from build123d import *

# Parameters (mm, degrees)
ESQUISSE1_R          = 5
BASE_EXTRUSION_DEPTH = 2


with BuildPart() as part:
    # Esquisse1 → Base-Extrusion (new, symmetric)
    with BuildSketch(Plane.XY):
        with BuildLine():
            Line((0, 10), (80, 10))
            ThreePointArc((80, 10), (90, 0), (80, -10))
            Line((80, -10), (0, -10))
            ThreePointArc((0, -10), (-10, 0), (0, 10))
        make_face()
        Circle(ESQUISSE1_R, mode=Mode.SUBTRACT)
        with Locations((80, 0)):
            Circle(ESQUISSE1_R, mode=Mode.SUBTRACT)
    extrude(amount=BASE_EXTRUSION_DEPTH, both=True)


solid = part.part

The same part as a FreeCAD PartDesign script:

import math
import FreeCAD as App
import Part
import Sketcher
from FreeCAD import Vector
Q = App.Units.Quantity

doc = App.newDocument("Part")
body = doc.addObject("PartDesign::Body", "Body")

# Sketch on XY plane
sketch1 = doc.addObject("Sketcher::SketchObject", "Sketch")
body.addObject(sketch1)
sketch1.AttachmentSupport = (doc.XY_Plane, [""])
sketch1.MapMode = "FlatFace"
sketch1.addGeometry([
    Part.LineSegment(Vector(80, 10, 0), Vector(0, 10, 0)),  # 0
    Part.ArcOfCircle(Part.Circle(Vector(0, 0, 0), Vector(0, 0, 1), 10), math.radians(90), math.radians(270)),  # 1
    Part.LineSegment(Vector(0, -10, 0), Vector(80, -10, 0)),  # 2
    Part.ArcOfCircle(Part.Circle(Vector(80, 0, 0), Vector(0, 0, 1), 10), math.radians(-90), math.radians(90)),  # 3
    Part.Circle(Vector(80, 0, 0), Vector(0, 0, 1), 5),  # 4
    Part.Circle(Vector(0, 0, 0), Vector(0, 0, 1), 5),  # 5
], False)
sketch1.addConstraint([
    Sketcher.Constraint("Tangent", 0, 2, 1, 1),
    Sketcher.Constraint("Tangent", 1, 2, 2, 1),
    Sketcher.Constraint("Tangent", 2, 2, 3, 1),
    Sketcher.Constraint("Tangent", 3, 2, 0, 1),
    Sketcher.Constraint("Horizontal", 0),
    Sketcher.Constraint("Horizontal", 2),
    Sketcher.Constraint("Coincident", 1, 3, -1, 1),
    Sketcher.Constraint("Coincident", 5, 3, -1, 1),
    Sketcher.Constraint("Coincident", 4, 3, 3, 3),
    Sketcher.Constraint("Equal", 4, 5),
    Sketcher.Constraint("Diameter", 4, Q("10 mm")),
    Sketcher.Constraint("Radius", 1, Q("10 mm")),
    Sketcher.Constraint("DistanceX", 0, 2, 0, 1, Q("80 mm")),
])
pad1 = doc.addObject("PartDesign::Pad", "Pad")
body.addObject(pad1)
pad1.Profile = sketch1
pad1.Length = 4
pad1.Midplane = True

doc.recompute()
